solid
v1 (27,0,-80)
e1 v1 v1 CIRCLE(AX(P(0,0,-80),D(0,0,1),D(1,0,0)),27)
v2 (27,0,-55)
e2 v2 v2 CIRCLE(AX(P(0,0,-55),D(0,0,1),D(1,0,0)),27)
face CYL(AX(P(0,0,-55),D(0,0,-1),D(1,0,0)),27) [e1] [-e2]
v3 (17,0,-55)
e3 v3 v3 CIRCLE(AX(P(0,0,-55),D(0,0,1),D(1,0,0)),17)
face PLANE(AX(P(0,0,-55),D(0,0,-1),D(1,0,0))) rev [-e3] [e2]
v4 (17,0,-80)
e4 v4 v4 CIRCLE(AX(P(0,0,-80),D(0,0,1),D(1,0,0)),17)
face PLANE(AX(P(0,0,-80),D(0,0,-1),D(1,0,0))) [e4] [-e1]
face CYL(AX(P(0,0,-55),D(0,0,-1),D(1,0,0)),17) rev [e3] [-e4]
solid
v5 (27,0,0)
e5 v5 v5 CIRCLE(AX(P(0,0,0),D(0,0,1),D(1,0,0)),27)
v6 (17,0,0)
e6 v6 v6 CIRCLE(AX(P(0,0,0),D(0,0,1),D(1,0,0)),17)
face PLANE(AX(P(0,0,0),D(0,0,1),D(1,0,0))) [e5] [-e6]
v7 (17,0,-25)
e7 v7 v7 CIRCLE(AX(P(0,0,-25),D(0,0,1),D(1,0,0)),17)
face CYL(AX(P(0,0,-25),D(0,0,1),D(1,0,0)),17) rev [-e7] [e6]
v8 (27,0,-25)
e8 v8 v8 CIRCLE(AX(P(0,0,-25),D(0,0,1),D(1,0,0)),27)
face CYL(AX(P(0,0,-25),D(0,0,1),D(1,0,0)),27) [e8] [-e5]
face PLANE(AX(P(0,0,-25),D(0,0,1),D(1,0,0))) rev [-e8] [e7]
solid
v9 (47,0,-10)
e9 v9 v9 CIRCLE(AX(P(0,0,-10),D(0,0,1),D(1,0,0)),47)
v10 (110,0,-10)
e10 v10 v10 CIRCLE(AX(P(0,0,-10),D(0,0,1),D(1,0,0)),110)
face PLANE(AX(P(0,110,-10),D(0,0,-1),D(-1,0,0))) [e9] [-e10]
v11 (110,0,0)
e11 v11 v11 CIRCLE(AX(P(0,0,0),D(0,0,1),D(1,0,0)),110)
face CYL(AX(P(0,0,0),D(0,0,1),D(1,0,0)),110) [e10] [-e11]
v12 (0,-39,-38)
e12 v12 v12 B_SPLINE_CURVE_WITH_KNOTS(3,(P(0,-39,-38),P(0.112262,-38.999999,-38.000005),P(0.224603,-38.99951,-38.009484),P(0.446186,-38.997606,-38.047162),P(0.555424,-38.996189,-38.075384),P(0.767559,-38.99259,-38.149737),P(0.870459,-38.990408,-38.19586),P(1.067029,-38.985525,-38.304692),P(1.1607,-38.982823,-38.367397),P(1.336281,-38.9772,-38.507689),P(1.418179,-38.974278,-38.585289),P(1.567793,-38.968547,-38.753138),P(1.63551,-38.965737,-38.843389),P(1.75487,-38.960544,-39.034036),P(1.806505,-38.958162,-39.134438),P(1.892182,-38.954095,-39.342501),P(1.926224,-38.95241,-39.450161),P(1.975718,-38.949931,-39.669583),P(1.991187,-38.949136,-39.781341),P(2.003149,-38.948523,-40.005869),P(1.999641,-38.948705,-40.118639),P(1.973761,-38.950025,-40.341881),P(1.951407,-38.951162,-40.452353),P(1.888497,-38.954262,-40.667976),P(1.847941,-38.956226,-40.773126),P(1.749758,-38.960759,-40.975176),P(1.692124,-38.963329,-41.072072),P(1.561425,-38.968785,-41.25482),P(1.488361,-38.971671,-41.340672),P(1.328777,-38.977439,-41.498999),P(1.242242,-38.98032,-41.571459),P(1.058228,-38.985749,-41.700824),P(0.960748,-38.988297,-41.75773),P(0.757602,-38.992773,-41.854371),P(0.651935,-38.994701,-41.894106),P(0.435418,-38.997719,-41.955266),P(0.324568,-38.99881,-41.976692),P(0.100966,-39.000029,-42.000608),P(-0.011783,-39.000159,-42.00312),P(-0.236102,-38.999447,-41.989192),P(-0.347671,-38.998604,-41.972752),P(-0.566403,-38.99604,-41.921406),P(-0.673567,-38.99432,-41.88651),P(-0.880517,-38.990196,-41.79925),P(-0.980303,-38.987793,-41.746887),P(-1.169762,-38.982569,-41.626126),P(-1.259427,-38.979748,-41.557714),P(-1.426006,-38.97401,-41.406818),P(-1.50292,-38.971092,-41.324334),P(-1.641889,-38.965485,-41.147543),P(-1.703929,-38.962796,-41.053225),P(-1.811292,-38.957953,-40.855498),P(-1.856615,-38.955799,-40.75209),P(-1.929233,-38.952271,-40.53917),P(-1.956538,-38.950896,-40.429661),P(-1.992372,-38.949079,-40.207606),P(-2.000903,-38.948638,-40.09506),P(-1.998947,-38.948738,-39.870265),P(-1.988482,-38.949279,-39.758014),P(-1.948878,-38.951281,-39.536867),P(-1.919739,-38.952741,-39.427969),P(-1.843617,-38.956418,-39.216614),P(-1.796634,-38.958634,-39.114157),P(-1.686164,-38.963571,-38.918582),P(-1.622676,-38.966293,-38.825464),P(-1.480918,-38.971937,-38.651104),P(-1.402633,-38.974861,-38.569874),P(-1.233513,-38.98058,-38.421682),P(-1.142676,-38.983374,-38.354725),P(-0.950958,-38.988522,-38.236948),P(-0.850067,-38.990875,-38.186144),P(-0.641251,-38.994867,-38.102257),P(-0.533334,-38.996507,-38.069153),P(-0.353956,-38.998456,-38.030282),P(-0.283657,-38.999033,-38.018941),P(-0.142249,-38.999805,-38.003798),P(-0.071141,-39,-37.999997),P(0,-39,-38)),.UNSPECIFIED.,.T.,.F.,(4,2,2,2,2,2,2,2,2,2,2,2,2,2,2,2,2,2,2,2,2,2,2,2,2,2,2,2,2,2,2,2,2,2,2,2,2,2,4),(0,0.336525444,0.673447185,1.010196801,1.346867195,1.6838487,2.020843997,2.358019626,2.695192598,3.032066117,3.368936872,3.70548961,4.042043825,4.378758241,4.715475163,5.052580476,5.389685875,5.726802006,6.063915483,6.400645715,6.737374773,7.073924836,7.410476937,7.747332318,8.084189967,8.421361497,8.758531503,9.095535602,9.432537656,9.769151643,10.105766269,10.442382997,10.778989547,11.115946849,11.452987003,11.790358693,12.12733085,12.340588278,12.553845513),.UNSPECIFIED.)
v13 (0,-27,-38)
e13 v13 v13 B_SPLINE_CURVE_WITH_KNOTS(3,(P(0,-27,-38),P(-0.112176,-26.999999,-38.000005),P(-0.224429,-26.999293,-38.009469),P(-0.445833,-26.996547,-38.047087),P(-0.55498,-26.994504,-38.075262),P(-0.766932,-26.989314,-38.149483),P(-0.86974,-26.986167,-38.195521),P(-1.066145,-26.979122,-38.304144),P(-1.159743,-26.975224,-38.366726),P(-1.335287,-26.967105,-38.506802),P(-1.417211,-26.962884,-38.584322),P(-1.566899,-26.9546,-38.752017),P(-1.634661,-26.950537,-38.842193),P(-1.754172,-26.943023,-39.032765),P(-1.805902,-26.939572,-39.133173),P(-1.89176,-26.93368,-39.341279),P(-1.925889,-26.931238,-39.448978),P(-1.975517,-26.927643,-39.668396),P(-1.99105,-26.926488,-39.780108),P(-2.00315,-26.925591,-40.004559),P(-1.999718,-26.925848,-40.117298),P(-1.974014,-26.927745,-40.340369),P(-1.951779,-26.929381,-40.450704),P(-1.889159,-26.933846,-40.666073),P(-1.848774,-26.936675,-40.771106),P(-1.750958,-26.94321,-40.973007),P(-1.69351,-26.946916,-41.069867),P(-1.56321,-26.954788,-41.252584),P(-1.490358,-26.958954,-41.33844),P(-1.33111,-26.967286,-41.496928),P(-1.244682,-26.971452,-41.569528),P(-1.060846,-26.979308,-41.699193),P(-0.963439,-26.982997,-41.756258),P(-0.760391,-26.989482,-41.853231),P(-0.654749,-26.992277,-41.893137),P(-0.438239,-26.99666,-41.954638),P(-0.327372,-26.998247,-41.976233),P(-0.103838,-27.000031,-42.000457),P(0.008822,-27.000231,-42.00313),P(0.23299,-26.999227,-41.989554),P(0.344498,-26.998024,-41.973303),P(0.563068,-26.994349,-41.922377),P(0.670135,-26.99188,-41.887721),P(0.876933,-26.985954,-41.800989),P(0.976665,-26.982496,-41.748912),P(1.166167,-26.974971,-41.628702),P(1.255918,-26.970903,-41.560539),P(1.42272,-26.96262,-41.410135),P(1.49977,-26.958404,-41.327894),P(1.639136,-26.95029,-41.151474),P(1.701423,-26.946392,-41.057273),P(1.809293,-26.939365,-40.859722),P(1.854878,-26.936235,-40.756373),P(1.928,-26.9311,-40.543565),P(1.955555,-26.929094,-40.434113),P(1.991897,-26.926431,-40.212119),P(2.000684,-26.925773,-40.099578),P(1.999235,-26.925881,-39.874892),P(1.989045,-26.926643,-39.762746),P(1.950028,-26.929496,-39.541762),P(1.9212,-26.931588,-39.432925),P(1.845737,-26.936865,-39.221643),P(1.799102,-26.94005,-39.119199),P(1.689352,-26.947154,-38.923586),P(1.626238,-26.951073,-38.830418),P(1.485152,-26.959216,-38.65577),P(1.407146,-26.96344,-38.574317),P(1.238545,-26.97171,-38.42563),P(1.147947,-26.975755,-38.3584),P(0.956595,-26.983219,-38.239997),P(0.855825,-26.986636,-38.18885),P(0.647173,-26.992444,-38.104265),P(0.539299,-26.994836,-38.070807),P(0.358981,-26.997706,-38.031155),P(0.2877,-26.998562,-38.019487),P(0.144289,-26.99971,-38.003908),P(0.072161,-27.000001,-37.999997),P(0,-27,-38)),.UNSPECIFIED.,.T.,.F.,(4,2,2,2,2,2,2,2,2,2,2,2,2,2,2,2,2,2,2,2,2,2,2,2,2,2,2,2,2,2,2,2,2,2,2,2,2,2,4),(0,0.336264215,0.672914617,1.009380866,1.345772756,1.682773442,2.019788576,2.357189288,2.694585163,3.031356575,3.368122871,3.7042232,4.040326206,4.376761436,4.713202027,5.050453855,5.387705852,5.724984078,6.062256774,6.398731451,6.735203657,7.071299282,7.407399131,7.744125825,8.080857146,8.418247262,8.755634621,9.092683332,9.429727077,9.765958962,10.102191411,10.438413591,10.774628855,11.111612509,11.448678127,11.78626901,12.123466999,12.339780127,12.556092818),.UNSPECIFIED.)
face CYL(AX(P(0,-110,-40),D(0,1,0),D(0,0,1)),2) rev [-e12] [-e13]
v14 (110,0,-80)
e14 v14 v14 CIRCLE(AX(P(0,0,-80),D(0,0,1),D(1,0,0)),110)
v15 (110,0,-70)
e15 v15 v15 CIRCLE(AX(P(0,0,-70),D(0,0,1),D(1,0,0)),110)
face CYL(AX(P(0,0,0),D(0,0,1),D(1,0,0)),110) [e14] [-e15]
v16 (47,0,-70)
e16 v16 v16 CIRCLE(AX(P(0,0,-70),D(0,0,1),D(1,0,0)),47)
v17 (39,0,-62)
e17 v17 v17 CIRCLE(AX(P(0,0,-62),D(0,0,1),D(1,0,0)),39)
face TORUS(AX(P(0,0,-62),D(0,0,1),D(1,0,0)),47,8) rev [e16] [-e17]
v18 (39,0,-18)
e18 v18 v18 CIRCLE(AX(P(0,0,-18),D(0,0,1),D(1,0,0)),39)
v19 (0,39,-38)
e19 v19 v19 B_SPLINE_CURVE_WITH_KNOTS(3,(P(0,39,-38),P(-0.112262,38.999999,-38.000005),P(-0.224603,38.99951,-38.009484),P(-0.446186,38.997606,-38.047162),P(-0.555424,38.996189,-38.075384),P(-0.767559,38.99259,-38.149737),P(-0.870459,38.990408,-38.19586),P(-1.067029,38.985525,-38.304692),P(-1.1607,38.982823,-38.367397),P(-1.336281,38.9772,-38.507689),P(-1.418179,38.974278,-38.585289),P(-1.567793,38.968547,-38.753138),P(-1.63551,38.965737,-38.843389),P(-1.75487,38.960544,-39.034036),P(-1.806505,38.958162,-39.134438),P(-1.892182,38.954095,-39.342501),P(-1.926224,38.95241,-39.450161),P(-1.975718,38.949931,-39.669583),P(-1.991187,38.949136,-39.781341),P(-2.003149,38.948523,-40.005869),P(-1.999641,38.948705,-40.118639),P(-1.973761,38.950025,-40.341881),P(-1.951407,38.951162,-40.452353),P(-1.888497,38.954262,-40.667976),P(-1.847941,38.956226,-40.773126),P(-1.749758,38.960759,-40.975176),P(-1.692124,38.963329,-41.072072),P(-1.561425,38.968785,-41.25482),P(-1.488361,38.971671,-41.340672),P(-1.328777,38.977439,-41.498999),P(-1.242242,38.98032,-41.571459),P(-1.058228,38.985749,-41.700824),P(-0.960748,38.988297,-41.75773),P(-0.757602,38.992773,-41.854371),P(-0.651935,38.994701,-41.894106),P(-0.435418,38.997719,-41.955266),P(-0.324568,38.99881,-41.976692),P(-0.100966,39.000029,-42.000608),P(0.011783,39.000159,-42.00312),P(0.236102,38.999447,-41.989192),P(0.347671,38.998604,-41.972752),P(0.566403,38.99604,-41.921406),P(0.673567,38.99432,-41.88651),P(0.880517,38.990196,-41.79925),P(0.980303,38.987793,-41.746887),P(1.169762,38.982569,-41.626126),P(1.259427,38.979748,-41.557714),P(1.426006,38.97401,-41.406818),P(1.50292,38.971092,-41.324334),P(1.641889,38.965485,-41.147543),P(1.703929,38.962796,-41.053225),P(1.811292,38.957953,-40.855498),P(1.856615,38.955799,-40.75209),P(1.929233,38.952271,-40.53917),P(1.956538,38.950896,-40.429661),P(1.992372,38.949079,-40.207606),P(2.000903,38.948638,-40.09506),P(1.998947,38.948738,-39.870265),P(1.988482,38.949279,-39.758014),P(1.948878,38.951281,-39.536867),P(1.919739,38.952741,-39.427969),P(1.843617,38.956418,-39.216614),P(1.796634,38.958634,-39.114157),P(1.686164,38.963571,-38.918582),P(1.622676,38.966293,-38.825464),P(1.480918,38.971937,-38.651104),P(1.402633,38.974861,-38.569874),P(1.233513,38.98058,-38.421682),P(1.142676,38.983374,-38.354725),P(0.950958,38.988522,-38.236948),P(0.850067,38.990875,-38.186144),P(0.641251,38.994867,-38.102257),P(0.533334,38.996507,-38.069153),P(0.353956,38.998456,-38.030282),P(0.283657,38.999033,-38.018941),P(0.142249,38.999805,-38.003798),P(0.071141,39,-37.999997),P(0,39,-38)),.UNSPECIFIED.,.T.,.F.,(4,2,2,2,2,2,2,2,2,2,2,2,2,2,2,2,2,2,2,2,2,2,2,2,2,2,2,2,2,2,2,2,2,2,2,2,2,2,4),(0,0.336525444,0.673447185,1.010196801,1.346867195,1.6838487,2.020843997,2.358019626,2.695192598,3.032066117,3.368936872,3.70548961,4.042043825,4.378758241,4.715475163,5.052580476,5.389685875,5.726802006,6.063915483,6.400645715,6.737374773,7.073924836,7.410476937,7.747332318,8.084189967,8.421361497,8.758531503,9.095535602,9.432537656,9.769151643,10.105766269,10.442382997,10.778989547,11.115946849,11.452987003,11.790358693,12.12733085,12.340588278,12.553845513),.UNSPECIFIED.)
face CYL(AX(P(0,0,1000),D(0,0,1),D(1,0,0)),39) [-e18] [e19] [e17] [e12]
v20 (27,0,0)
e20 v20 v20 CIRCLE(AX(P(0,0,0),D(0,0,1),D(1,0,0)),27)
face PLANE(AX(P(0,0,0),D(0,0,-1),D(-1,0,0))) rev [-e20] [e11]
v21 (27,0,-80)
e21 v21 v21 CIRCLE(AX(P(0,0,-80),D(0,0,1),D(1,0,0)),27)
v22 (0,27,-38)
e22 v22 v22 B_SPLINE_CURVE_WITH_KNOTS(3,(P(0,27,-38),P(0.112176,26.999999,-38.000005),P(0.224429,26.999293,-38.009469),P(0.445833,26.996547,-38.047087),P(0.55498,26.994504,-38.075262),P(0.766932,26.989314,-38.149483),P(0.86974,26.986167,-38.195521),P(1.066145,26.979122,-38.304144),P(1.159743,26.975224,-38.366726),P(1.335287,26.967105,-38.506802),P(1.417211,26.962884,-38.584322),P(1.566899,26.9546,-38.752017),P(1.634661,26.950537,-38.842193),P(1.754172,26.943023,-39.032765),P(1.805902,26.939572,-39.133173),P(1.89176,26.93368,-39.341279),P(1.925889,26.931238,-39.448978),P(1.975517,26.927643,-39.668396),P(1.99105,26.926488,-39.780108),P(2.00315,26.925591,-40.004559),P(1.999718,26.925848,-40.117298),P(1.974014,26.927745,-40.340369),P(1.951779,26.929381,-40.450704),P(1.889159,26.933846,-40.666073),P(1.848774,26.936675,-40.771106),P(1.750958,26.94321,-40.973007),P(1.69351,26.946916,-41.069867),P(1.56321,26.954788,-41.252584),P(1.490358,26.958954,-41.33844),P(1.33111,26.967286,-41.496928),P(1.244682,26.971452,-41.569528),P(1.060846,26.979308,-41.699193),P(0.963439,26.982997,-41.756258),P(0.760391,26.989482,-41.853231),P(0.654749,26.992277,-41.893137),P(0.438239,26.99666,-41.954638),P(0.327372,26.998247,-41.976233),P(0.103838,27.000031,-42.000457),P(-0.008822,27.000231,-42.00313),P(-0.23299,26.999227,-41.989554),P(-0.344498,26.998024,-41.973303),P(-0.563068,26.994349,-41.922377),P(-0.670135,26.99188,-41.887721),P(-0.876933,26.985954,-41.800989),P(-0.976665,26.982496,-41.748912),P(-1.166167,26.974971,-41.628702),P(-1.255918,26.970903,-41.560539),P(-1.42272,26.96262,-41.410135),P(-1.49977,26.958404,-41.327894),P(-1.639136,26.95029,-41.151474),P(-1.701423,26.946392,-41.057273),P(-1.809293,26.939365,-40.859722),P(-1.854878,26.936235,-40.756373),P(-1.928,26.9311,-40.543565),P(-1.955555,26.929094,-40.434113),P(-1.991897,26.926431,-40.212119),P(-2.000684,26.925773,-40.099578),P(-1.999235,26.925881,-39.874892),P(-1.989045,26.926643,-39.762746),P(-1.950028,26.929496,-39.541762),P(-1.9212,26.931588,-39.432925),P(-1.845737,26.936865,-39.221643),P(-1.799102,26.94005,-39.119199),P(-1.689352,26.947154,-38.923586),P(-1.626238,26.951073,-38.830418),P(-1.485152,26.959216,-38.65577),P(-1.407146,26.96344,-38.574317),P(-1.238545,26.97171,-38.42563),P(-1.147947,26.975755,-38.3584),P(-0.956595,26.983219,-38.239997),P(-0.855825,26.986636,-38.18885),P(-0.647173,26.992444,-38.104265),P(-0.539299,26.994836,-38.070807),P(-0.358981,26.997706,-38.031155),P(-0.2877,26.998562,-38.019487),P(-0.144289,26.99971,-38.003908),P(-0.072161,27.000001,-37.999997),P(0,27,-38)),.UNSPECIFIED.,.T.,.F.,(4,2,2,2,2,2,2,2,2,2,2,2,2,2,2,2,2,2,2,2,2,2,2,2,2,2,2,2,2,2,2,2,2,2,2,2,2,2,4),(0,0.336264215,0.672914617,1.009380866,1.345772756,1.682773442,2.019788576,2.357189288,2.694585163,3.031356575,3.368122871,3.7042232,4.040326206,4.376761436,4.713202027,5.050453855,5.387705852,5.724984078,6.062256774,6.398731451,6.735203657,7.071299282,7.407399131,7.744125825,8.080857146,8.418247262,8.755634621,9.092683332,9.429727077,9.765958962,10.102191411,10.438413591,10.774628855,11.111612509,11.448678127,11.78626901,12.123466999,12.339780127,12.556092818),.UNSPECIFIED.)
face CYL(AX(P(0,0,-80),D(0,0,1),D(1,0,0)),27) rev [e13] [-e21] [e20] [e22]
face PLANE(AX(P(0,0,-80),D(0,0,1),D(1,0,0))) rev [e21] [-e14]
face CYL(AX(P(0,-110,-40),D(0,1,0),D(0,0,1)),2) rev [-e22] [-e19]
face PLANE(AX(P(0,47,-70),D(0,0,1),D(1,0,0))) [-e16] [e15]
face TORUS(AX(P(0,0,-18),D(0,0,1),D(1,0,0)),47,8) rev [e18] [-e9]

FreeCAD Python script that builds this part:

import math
import FreeCAD as App
import Part
import Sketcher
from FreeCAD import Vector
Q = App.Units.Quantity

doc = App.newDocument("Part")
body = doc.addObject("PartDesign::Body", "Body")

# Sketch on YZ plane
sketch1 = doc.addObject("Sketcher::SketchObject", "Sketch")
body.addObject(sketch1)
sketch1.AttachmentSupport = (doc.YZ_Plane, [""])
sketch1.MapMode = "FlatFace"
sketch1.addGeometry([
    Part.LineSegment(Vector(110, 0, 0), Vector(0, 0, 0)),
    Part.LineSegment(Vector(0, 0, 0), Vector(0, -80, 0)),
    Part.LineSegment(Vector(0, -80, 0), Vector(110, -80, 0)),
    Part.LineSegment(Vector(110, -80, 0), Vector(110, 0, 0)),
], False)
sketch1.addConstraint([
    Sketcher.Constraint("Coincident", 0, 2, 1, 1),
    Sketcher.Constraint("Coincident", 1, 2, 2, 1),
    Sketcher.Constraint("Coincident", 2, 2, 3, 1),
    Sketcher.Constraint("Coincident", 3, 2, 0, 1),
    Sketcher.Constraint("Horizontal", 0),
    Sketcher.Constraint("Vertical", 1),
    Sketcher.Constraint("Horizontal", 2),
    Sketcher.Constraint("Vertical", 3),
    Sketcher.Constraint("Coincident", 0, 2, -1, 1),
    Sketcher.Constraint("DistanceX", 0, 2, 0, 1, Q("110 mm")),
    Sketcher.Constraint("DistanceY", 1, 2, 1, 1, Q("80 mm")),
])
revolution = doc.addObject("PartDesign::Revolution", "Revolution")
body.addObject(revolution)
revolution.Profile = sketch1
revolution.ReferenceAxis = (sketch1, ["V_Axis"])
revolution.Angle = 360

# Sketch on XY plane
sketch2 = doc.addObject("Sketcher::SketchObject", "Sketch001")
body.addObject(sketch2)
sketch2.AttachmentSupport = (doc.XY_Plane, [""])
sketch2.MapMode = "FlatFace"
sketch2.addGeometry(Part.Circle(Vector(0, 0, 0), Vector(0, 0, 1), 27), False)
sketch2.addConstraint([
    Sketcher.Constraint("Coincident", 0, 3, -1, 1),
    Sketcher.Constraint("Diameter", 0, Q("54 mm")),
])
pocket1 = doc.addObject("PartDesign::Pocket", "Pocket")
body.addObject(pocket1)
pocket1.Profile = sketch2
pocket1.Type = "ThroughAll"

# Sketch on XZ plane
sketch3 = doc.addObject("Sketcher::SketchObject", "Sketch002")
body.addObject(sketch3)
sketch3.AttachmentSupport = (doc.XZ_Plane, [""])
sketch3.MapMode = "FlatFace"
sketch3.addGeometry(Part.Circle(Vector(0, -40, 0), Vector(0, 0, 1), 2), False)
sketch3.addConstraint([
    Sketcher.Constraint("PointOnObject", 0, 3, -2),
    Sketcher.Constraint("Diameter", 0, Q("4 mm")),
    Sketcher.Constraint("DistanceY", 0, 3, -1, 1, Q("40 mm")),
])
pocket2 = doc.addObject("PartDesign::Pocket", "Pocket001")
body.addObject(pocket2)
pocket2.Profile = sketch3
pocket2.Type = "ThroughAll"
pocket2.Midplane = True

# Sketch on YZ plane
sketch4 = doc.addObject("Sketcher::SketchObject", "Sketch003")
body.addObject(sketch4)
sketch4.AttachmentSupport = (doc.YZ_Plane, [""])
sketch4.MapMode = "FlatFace"
sketch4.addGeometry([
    Part.LineSegment(Vector(110, -10, 0), Vector(47, -10, 0)),  # 0
    Part.ArcOfCircle(Part.Circle(Vector(47, -18, 0), Vector(0, 0, 1), 8), math.radians(90), math.radians(180)),  # 1
    Part.LineSegment(Vector(39, -18, 0), Vector(39, -62, 0)),  # 2
    Part.ArcOfCircle(Part.Circle(Vector(47, -62, 0), Vector(0, 0, 1), 8), math.radians(-180), math.radians(-90)),  # 3
    Part.LineSegment(Vector(47, -70, 0), Vector(110, -70, 0)),  # 4
    Part.LineSegment(Vector(110, -70, 0), Vector(110, -10, 0)),  # 5
], False)
sketch4.addConstraint([
    Sketcher.Constraint("Tangent", 0, 2, 1, 1),
    Sketcher.Constraint("Tangent", 1, 2, 2, 1),
    Sketcher.Constraint("Tangent", 2, 2, 3, 1),
    Sketcher.Constraint("Tangent", 3, 2, 4, 1),
    Sketcher.Constraint("Coincident", 4, 2, 5, 1),
    Sketcher.Constraint("Coincident", 5, 2, 0, 1),
    Sketcher.Constraint("Horizontal", 0),
    Sketcher.Constraint("Vertical", 2),
    Sketcher.Constraint("Horizontal", 4),
    Sketcher.Constraint("Vertical", 5),
    Sketcher.Constraint("Equal", 1, 3),
    Sketcher.Constraint("Radius", 1, Q("8 mm")),
    Sketcher.Constraint("DistanceX", 0, 2, 0, 1, Q("63 mm")),
    Sketcher.Constraint("DistanceY", 2, 2, 2, 1, Q("44 mm")),
    Sketcher.Constraint("DistanceX", -1, 1, 1, 3, Q("47 mm")),
    Sketcher.Constraint("DistanceY", 1, 3, -1, 1, Q("18 mm")),
])
groove = doc.addObject("PartDesign::Groove", "Groove")
body.addObject(groove)
groove.Profile = sketch4
groove.ReferenceAxis = (sketch4, ["V_Axis"])
groove.Angle = 360
body2 = doc.addObject("PartDesign::Body", "Body001")

# Sketch on XY plane
sketch5 = doc.addObject("Sketcher::SketchObject", "Sketch004")
body2.addObject(sketch5)
sketch5.AttachmentSupport = (doc.getObject("XY_Plane001"), [""])
sketch5.MapMode = "FlatFace"
sketch5.addGeometry([
    Part.Circle(Vector(0, 0, 0), Vector(0, 0, 1), 27),
    Part.Circle(Vector(0, 0, 0), Vector(0, 0, 1), 17),
], False)
sketch5.addConstraint([
    Sketcher.Constraint("Coincident", 0, 3, -1, 1),
    Sketcher.Constraint("Coincident", 1, 3, -1, 1),
    Sketcher.Constraint("Diameter", 0, Q("54 mm")),
    Sketcher.Constraint("Diameter", 1, Q("34 mm")),
])
pad1 = doc.addObject("PartDesign::Pad", "Pad")
body2.addObject(pad1)
pad1.Profile = sketch5
pad1.Length = 25
pad1.Reversed = True
body3 = doc.addObject("PartDesign::Body", "Body002")
doc.recompute()

mirroring = doc.addObject("Part::Mirroring", "Mirroring")
mirroring.Source = body2
mirroring.Base = Vector(0, 0, -40)
mirroring.Normal = Vector(0, 0, 1)
body3.BaseFeature = mirroring
doc.recompute()
mirroring.Visibility = False

doc.recompute()
